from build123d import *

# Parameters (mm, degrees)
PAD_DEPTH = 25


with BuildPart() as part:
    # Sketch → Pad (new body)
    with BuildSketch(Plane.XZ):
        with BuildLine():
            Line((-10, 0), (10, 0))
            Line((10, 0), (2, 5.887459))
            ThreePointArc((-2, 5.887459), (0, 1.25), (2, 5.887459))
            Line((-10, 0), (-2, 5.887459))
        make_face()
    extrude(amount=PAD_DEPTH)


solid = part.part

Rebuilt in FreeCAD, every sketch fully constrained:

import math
import FreeCAD as App
import Part
import Sketcher
from FreeCAD import Vector
Q = App.Units.Quantity

doc = App.newDocument("Part")
body = doc.addObject("PartDesign::Body", "Body")

# Sketch on XZ plane
sketch1 = body.newObject("Sketcher::SketchObject", "Sketch")
sketch1.AttachmentSupport = (doc.getObject("XZ_Plane"), [""])
sketch1.MapMode = "FlatFace"
sketch1.addGeometry([
    Part.LineSegment(Vector(-10, 0, 0), Vector(10, 0, 0)),
    Part.LineSegment(Vector(10, 0, 0), Vector(2, 5.9, 0)),
    Part.ArcOfCircle(Part.Circle(Vector(0, 4, 0), Vector(0, 0, 1), 2.8), math.radians(137), math.radians(403)),
    Part.LineSegment(Vector(-2, 5.9, 0), Vector(-10, 0, 0)),
], False)
sketch1.addConstraint([
    Sketcher.Constraint("Coincident", 0, 2, 1, 1),
    Sketcher.Constraint("Coincident", 1, 2, 2, 2),
    Sketcher.Constraint("Coincident", 2, 1, 3, 1),
    Sketcher.Constraint("Coincident", 3, 2, 0, 1),
    Sketcher.Constraint("Horizontal", 0),
    Sketcher.Constraint("Symmetric", 0, 2, 3, 2, -1, 1),
    Sketcher.Constraint("Symmetric", 1, 2, 2, 1, -2),
    Sketcher.Constraint("DistanceX", 0, 1, 0, 2, Q("20 mm")),
    Sketcher.Constraint("Radius", 2, Q("2.75 mm")),
    Sketcher.Constraint("DistanceY", -1, 1, 2, 3, Q("4 mm")),
    Sketcher.Constraint("DistanceX", -1, 1, 1, 2, Q("2 mm")),
])
pad1 = body.newObject("PartDesign::Pad", "Pad")
pad1.Profile = sketch1
pad1.Length = 25

doc.recompute()
